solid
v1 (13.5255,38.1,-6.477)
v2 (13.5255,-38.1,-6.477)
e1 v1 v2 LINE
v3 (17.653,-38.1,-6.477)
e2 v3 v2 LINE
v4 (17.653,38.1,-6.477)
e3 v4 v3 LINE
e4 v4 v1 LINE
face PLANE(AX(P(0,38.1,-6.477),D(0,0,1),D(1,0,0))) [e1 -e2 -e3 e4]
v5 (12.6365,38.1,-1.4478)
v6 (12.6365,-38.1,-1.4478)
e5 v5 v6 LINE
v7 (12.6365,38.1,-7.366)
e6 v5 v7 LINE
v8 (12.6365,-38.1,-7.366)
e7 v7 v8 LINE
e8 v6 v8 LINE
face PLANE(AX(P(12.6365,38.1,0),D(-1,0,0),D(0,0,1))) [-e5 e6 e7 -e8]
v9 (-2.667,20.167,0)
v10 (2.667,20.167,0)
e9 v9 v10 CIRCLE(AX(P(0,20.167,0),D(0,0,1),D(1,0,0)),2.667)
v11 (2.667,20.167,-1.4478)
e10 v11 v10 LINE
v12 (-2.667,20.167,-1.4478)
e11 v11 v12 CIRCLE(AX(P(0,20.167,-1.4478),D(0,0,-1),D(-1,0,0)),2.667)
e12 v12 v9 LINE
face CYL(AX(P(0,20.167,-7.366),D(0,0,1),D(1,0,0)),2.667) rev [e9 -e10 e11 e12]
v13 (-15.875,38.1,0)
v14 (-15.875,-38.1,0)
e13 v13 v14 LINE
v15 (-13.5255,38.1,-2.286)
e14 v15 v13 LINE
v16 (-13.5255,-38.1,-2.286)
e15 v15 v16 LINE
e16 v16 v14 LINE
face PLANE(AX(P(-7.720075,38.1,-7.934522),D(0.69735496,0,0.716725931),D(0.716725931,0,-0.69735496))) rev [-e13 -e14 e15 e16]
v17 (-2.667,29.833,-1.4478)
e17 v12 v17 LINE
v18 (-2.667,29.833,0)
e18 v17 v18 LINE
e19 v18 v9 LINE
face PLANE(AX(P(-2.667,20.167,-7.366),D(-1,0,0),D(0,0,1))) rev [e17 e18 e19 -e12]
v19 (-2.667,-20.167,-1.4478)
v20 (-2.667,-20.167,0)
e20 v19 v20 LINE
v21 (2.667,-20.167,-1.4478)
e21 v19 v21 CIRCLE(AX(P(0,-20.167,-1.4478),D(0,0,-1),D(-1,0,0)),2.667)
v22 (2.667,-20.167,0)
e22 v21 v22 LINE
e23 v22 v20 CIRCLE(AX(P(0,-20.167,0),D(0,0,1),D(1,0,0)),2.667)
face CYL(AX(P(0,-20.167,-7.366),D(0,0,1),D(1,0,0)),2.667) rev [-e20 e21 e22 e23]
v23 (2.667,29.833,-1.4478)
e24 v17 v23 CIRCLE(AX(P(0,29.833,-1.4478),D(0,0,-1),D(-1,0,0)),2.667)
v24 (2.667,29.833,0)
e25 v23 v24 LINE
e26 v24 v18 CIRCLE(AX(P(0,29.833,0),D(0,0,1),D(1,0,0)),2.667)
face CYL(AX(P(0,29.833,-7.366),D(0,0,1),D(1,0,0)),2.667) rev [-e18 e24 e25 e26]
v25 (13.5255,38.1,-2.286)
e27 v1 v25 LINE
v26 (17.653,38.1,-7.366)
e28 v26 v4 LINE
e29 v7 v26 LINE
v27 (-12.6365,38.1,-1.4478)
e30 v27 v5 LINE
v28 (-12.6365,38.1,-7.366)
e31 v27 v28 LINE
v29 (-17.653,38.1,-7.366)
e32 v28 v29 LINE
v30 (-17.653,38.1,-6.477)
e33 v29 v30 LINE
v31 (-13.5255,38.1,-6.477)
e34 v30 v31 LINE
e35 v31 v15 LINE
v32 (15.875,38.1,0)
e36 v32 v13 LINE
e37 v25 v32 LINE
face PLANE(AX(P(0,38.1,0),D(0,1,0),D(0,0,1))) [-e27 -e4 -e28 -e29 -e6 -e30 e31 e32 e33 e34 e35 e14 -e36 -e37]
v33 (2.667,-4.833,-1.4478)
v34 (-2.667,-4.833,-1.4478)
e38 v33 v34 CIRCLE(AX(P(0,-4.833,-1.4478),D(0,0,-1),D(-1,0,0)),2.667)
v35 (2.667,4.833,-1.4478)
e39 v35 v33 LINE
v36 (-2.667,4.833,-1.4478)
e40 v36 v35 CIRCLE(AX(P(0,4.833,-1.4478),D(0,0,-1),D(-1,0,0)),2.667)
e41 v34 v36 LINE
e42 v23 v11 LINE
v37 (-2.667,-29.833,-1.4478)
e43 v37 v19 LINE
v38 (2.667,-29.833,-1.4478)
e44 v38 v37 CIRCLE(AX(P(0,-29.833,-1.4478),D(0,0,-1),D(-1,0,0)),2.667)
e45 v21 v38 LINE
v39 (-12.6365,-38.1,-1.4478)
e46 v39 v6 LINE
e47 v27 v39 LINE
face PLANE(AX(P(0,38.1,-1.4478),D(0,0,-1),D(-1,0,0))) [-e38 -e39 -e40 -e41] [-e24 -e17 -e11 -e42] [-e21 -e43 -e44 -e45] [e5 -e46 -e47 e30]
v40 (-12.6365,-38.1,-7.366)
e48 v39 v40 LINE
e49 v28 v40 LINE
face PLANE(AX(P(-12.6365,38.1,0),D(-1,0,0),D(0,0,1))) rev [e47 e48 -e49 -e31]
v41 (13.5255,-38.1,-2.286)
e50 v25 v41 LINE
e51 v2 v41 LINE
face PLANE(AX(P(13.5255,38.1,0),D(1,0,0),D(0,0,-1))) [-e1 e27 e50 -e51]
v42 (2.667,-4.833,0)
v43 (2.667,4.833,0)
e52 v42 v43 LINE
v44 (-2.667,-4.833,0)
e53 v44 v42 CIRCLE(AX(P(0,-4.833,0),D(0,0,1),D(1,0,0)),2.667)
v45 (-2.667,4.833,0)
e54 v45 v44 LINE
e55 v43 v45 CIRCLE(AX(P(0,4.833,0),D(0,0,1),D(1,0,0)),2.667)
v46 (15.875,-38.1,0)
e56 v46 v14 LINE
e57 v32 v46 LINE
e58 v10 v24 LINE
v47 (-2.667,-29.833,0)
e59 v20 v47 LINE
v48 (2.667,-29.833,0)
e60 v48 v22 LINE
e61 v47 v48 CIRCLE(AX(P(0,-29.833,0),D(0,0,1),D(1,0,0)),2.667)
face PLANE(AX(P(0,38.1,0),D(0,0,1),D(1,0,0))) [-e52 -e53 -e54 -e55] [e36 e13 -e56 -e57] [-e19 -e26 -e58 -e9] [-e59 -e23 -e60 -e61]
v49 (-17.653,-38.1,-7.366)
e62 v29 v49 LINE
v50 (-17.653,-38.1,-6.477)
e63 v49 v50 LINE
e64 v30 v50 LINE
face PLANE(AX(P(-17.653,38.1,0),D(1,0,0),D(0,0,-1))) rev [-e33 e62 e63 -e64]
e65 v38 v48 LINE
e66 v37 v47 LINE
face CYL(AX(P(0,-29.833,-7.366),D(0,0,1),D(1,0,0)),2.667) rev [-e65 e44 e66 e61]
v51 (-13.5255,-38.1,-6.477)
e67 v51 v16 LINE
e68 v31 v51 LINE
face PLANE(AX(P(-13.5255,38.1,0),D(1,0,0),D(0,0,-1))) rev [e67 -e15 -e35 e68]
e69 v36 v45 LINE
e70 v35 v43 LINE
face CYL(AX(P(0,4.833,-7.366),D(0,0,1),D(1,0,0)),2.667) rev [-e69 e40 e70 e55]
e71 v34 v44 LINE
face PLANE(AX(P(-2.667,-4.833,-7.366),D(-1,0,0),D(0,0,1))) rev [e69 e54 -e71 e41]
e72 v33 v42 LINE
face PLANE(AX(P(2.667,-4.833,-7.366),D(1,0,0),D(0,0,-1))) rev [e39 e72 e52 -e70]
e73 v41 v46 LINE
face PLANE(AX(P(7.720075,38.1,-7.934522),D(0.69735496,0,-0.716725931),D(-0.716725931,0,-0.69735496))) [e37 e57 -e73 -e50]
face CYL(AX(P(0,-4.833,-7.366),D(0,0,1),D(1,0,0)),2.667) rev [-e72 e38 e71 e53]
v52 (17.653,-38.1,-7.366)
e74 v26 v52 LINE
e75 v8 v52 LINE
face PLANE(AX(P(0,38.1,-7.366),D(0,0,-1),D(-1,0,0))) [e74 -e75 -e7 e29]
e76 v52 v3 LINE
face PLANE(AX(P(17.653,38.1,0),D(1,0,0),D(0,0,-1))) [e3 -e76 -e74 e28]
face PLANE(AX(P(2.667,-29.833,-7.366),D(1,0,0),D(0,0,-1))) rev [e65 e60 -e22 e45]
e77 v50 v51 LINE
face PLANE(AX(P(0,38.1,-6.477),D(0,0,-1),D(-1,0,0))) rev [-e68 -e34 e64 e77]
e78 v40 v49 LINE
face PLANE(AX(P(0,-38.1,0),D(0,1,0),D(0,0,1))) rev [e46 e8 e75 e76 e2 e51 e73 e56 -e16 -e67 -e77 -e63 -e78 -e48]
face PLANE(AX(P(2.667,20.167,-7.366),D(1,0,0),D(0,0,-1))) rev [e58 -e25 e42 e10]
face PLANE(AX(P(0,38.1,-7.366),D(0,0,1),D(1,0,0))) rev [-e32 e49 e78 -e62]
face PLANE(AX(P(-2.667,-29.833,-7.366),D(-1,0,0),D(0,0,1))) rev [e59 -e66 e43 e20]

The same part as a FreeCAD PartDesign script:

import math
import FreeCAD as App
import Part
import Sketcher
Q = App.Units.Quantity

doc = App.newDocument("Part")
params = doc.addObject("Spreadsheet::Sheet", "Params")
for row, (alias, value) in enumerate([
    ("sketch1_width", "1.25 in"),
    ("sketch1_width2", "0.995 in"),
    ("sketch1_height", "0.165 in"),
    ("sketch1_height2", "0.233 in"),
    ("pad1_length", "3 in"),
    ("sketch2_radius", "0.105 in"),
    ("linearpattern_pitch", "25 mm"),
    ("linearpattern2_pitch", "25 mm"),
], start=1):
    params.set(f"A{row}", alias)
    params.set(f"B{row}", "=" + value)
    params.setAlias(f"B{row}", alias)

body = doc.addObject("PartDesign::Body", "Body")

sketch1 = body.newObject("Sketcher::SketchObject", "Sketch")
sketch1.AttachmentSupport = (doc.getObject("XZ_Plane"), [""])
sketch1.MapMode = "FlatFace"
sketch1.addGeometry([
    Part.LineSegment(App.Vector(-15.9, 0, 0), App.Vector(15.9, 0, 0)),
    Part.LineSegment(App.Vector(15.9, 0, 0), App.Vector(13.5, -2.3, 0)),
    Part.LineSegment(App.Vector(13.5, -2.3, 0), App.Vector(13.5, -6.5, 0)),
    Part.LineSegment(App.Vector(13.5, -6.5, 0), App.Vector(17.7, -6.5, 0)),
    Part.LineSegment(App.Vector(17.7, -6.5, 0), App.Vector(17.7, -7.4, 0)),
    Part.LineSegment(App.Vector(17.7, -7.4, 0), App.Vector(12.6, -7.4, 0)),
    Part.LineSegment(App.Vector(12.6, -7.4, 0), App.Vector(12.6, -1.4, 0)),
    Part.LineSegment(App.Vector(12.6, -1.4, 0), App.Vector(-12.6, -1.4, 0)),
    Part.LineSegment(App.Vector(-12.6, -1.4, 0), App.Vector(-12.6, -7.4, 0)),
    Part.LineSegment(App.Vector(-12.6, -7.4, 0), App.Vector(-17.7, -7.4, 0)),
    Part.LineSegment(App.Vector(-17.7, -7.4, 0), App.Vector(-17.7, -6.5, 0)),
    Part.LineSegment(App.Vector(-17.7, -6.5, 0), App.Vector(-13.5, -6.5, 0)),
    Part.LineSegment(App.Vector(-13.5, -6.5, 0), App.Vector(-13.5, -2.3, 0)),
    Part.LineSegment(App.Vector(-13.5, -2.3, 0), App.Vector(-15.9, 0, 0)),
], False)
sketch1.addConstraint([
    Sketcher.Constraint("Coincident", 0, 2, 1, 1),
    Sketcher.Constraint("Coincident", 1, 2, 2, 1),
    Sketcher.Constraint("Coincident", 2, 2, 3, 1),
    Sketcher.Constraint("Coincident", 3, 2, 4, 1),
    Sketcher.Constraint("Coincident", 4, 2, 5, 1),
    Sketcher.Constraint("Coincident", 5, 2, 6, 1),
    Sketcher.Constraint("Coincident", 6, 2, 7, 1),
    Sketcher.Constraint("Coincident", 7, 2, 8, 1),
    Sketcher.Constraint("Coincident", 8, 2, 9, 1),
    Sketcher.Constraint("Coincident", 9, 2, 10, 1),
    Sketcher.Constraint("Coincident", 10, 2, 11, 1),
    Sketcher.Constraint("Coincident", 11, 2, 12, 1),
    Sketcher.Constraint("Coincident", 12, 2, 13, 1),
    Sketcher.Constraint("Coincident", 13, 2, 0, 1),
    Sketcher.Constraint("Horizontal", 0),
    Sketcher.Constraint("Vertical", 2),
    Sketcher.Constraint("Horizontal", 3),
    Sketcher.Constraint("Vertical", 4),
    Sketcher.Constraint("Horizontal", 5),
    Sketcher.Constraint("Vertical", 6),
    Sketcher.Constraint("Horizontal", 7),
    Sketcher.Constraint("Vertical", 8),
    Sketcher.Constraint("Horizontal", 9),
    Sketcher.Constraint("Vertical", 10),
    Sketcher.Constraint("Horizontal", 11),
    Sketcher.Constraint("Vertical", 12),
    Sketcher.Constraint("Symmetric", 0, 2, 13, 2, -1, 1),
    Sketcher.Constraint("Symmetric", 5, 2, 8, 2, -2),
    Sketcher.Constraint("Symmetric", 3, 2, 10, 2, -2),
    Sketcher.Constraint("Symmetric", 1, 2, 12, 2, -2),
    Sketcher.Constraint("DistanceX", 0, 1, 0, 2, Q("1.25 in")),
    Sketcher.Constraint("DistanceY", 4, 2, 1, 2, Q("0.2 in")),
    Sketcher.Constraint("DistanceX", 7, 2, 7, 1, Q("0.995 in")),
    Sketcher.Constraint("DistanceY", 2, 2, 2, 1, Q("0.165 in")),
    Sketcher.Constraint("DistanceY", 6, 1, 6, 2, Q("0.233 in")),
    Sketcher.Constraint("DistanceY", 1, 2, -1, 1, Q("0.09 in")),
    Sketcher.Constraint("DistanceX", 0, 2, 3, 2, Q("0.07 in")),
    Sketcher.Constraint("DistanceX", 7, 2, 1, 2, Q("1.03 in")),
])
sketch1.setExpression("Constraints[30]", "Params.sketch1_width")
sketch1.setExpression("Constraints[32]", "Params.sketch1_width2")
sketch1.setExpression("Constraints[33]", "Params.sketch1_height")
sketch1.setExpression("Constraints[34]", "Params.sketch1_height2")
pad1 = body.newObject("PartDesign::Pad", "Pad")
pad1.Profile = sketch1
pad1.setExpression("Length", "Params.pad1_length")
pad1.Midplane = True

sketch2 = body.newObject("Sketcher::SketchObject", "Sketch001")
sketch2.AttachmentSupport = (doc.getObject("XY_Plane"), [""])
sketch2.MapMode = "FlatFace"
sketch2.addGeometry([
    Part.LineSegment(App.Vector(-2.7, 4.8, 0), App.Vector(-2.7, -4.8, 0)),
    Part.ArcOfCircle(Part.Circle(App.Vector(0, -4.8, 0), App.Vector(0, 0, 1), 2.7), math.radians(180), math.radians(360)),
    Part.LineSegment(App.Vector(2.7, -4.8, 0), App.Vector(2.7, 4.8, 0)),
    Part.ArcOfCircle(Part.Circle(App.Vector(0, 4.8, 0), App.Vector(0, 0, 1), 2.7), math.radians(0), math.radians(180)),
], False)
sketch2.addConstraint([
    Sketcher.Constraint("Tangent", 0, 2, 1, 1),
    Sketcher.Constraint("Tangent", 1, 2, 2, 1),
    Sketcher.Constraint("Tangent", 2, 2, 3, 1),
    Sketcher.Constraint("Tangent", 3, 2, 0, 1),
    Sketcher.Constraint("Vertical", 0),
    Sketcher.Constraint("Vertical", 2),
    Sketcher.Constraint("Symmetric", 1, 3, 3, 3, -1, 1),
    Sketcher.Constraint("Radius", 1, Q("0.105 in")),
    Sketcher.Constraint("DistanceY", 0, 2, 0, 1, Q("9.666 mm")),
])
sketch2.setExpression("Constraints[7]", "Params.sketch2_radius")
pocket1 = body.newObject("PartDesign::Pocket", "Pocket")
pocket1.Profile = sketch2
pocket1.Type = "ThroughAll"
doc.recompute()

linearpattern = body.newObject("PartDesign::LinearPattern", "LinearPattern")
linearpattern.Originals = [pocket1]
linearpattern.Direction = (doc.getObject("Y_Axis"), [""])
linearpattern.Mode = "offset"
linearpattern.setExpression("Offset", "Params.linearpattern_pitch")
linearpattern.Occurrences = 2
linearpattern.Reversed = True
body.Tip = linearpattern
doc.recompute()

linearpattern2 = body.newObject("PartDesign::LinearPattern", "LinearPattern001")
linearpattern2.Originals = [pocket1]
linearpattern2.Direction = (doc.getObject("Y_Axis"), [""])
linearpattern2.Mode = "offset"
linearpattern2.setExpression("Offset", "Params.linearpattern2_pitch")
linearpattern2.Occurrences = 2
body.Tip = linearpattern2

doc.recompute()
